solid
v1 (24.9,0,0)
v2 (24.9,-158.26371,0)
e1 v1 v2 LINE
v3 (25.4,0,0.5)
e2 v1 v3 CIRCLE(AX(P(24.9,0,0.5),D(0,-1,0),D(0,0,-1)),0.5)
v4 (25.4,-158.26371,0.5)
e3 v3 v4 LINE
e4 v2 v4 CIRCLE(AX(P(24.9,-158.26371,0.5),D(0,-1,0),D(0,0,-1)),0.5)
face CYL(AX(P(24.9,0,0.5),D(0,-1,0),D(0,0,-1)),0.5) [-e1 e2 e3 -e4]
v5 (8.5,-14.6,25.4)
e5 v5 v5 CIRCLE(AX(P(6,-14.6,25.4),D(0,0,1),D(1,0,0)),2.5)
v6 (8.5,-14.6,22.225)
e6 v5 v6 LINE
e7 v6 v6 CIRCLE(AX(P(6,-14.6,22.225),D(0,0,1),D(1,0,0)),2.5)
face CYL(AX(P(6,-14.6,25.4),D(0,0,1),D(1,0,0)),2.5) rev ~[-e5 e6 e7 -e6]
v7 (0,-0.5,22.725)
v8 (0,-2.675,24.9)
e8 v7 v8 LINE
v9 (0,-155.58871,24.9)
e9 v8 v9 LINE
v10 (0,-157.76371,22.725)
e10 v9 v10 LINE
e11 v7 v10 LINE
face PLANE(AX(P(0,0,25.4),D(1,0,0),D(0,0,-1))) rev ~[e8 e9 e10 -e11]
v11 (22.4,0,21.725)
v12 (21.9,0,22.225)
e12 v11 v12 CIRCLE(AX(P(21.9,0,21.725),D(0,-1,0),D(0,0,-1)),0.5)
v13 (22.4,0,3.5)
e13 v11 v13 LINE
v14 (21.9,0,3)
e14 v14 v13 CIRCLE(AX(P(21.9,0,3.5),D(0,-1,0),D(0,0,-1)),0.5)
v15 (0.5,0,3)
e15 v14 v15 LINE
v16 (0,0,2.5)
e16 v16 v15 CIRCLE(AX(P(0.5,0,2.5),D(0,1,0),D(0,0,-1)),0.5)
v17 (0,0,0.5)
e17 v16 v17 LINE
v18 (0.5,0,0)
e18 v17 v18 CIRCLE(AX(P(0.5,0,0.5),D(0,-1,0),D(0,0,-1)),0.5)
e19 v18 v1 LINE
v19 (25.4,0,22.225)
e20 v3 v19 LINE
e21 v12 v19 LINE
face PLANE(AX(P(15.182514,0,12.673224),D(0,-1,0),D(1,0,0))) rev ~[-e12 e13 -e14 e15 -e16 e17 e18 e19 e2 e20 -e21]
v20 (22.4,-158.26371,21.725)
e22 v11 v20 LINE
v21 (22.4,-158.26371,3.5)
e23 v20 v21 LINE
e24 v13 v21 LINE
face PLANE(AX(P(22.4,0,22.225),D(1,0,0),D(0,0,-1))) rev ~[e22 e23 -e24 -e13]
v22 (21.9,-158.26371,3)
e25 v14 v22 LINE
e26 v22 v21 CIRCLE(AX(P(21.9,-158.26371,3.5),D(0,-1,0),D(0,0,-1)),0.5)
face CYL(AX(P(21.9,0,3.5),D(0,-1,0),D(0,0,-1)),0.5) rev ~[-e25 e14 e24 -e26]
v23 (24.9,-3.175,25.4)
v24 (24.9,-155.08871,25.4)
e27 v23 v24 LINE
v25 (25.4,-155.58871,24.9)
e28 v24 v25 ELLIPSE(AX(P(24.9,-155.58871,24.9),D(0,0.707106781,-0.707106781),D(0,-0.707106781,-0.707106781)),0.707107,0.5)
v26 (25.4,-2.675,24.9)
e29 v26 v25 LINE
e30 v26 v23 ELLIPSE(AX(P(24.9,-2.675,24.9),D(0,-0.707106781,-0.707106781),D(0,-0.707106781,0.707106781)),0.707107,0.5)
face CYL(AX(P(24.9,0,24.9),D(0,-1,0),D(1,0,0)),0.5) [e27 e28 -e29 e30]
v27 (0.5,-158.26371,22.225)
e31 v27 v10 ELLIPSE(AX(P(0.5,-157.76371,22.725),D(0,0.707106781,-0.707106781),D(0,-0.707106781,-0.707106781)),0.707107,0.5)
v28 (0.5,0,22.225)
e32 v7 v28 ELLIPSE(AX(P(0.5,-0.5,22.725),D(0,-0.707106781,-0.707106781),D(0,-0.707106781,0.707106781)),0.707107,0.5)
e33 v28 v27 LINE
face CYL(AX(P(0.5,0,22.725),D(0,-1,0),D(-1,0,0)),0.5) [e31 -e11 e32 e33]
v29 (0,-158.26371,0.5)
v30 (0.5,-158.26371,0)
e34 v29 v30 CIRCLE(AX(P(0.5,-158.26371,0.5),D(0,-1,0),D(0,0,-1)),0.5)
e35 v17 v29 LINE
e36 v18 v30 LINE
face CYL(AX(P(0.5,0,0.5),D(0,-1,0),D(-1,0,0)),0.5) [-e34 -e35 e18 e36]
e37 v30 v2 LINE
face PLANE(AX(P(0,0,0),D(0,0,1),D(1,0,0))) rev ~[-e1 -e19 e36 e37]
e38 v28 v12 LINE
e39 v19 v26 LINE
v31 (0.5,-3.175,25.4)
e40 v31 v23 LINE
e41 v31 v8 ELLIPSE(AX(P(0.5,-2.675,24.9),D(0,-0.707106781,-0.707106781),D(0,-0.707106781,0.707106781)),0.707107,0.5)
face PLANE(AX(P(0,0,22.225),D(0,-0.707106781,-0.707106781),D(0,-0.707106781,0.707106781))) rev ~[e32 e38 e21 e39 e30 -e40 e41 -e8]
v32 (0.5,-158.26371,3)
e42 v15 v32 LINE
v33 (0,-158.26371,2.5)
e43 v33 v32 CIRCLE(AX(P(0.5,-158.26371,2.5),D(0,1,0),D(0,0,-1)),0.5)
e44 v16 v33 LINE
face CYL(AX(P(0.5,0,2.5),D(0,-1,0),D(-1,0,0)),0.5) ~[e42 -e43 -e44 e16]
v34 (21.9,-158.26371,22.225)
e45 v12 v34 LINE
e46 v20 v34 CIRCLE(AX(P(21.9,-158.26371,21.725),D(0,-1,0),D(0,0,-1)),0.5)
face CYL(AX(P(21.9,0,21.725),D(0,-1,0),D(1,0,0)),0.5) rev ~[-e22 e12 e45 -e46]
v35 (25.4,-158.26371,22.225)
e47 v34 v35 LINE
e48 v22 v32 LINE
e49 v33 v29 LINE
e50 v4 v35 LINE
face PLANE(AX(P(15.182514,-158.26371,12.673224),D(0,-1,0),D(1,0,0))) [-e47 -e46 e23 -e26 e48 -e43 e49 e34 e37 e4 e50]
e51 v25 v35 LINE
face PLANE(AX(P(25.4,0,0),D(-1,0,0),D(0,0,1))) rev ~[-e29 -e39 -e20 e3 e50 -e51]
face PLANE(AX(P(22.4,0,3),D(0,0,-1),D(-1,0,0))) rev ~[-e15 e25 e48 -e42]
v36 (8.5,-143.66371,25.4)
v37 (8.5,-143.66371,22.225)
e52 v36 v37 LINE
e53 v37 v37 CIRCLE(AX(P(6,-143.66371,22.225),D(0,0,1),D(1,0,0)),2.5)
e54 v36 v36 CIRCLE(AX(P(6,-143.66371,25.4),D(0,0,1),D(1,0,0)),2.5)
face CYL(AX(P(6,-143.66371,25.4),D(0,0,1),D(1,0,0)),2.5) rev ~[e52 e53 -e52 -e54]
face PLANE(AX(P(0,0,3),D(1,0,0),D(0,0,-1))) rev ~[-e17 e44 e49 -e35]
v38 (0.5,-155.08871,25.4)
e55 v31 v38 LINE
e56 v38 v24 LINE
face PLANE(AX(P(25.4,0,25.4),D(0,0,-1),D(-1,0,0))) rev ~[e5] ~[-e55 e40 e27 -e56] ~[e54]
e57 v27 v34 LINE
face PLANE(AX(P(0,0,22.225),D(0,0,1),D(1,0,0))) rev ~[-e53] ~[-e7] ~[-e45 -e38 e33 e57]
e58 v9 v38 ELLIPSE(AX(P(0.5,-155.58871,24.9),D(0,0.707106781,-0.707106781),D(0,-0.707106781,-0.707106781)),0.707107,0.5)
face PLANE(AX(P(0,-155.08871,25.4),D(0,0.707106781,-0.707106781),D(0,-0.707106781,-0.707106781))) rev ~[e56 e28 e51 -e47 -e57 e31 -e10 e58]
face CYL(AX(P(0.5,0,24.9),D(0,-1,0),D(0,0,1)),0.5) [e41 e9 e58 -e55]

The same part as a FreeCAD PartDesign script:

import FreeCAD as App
import Part
import Sketcher


def edges_at(feature, points):
    """Names of the edges that pass closest to the given points."""
    edges = feature.Shape.Edges
    near = lambda p: min(range(len(edges)), key=lambda i: edges[i].distToShape(Part.Vertex(*p))[0])
    return sorted({f"Edge{near(p) + 1}" for p in points})


def add_polygon(sketch, points):
    """Adds a closed chain of lines whose ends are joined by coincident constraints."""
    first, n = sketch.GeometryCount, len(points)
    for a, b in zip(points, points[1:] + points[:1]):
        sketch.addGeometry(Part.LineSegment(App.Vector(*a, 0), App.Vector(*b, 0)), False)
    for i in range(n):
        sketch.addConstraint(Sketcher.Constraint("Coincident", first + i, 2, first + (i + 1) % n, 1))

doc = App.newDocument("Part")
body = doc.addObject("PartDesign::Body", "Body")

# Sketch on XZ plane
sketch1 = doc.addObject("Sketcher::SketchObject", "Sketch")
body.addObject(sketch1)
sketch1.AttachmentSupport = (doc.XZ_Plane, [""])
sketch1.MapMode = "FlatFace"
add_polygon(sketch1, [(0, 3), (0, 0), (25.4, 0), (25.4, 25.4), (0, 25.4), (0, 22.2), (22.4, 22.2), (22.4, 3)])  # lines 0-7
sketch1.addConstraint(Sketcher.Constraint("Vertical", 0))
sketch1.addConstraint(Sketcher.Constraint("Horizontal", 1))
sketch1.addConstraint(Sketcher.Constraint("Vertical", 2))
sketch1.addConstraint(Sketcher.Constraint("Horizontal", 3))
sketch1.addConstraint(Sketcher.Constraint("Vertical", 4))
sketch1.addConstraint(Sketcher.Constraint("Horizontal", 5))
sketch1.addConstraint(Sketcher.Constraint("Vertical", 6))
sketch1.addConstraint(Sketcher.Constraint("Horizontal", 7))
sketch1.addConstraint(Sketcher.Constraint("Coincident", 0, 2, -1, 1))
sketch1.addConstraint(Sketcher.Constraint("PointOnObject", 3, 2, -2))
sketch1.addConstraint(Sketcher.Constraint("Equal", 3, 2))
sketch1.addConstraint(Sketcher.Constraint("DistanceY", 0, 2, 0, 1, 3.0))
sketch1.addConstraint(Sketcher.Constraint("DistanceX", 1, 1, 1, 2, 25.4))
sketch1.addConstraint(Sketcher.Constraint("DistanceX", 5, 1, 5, 2, 22.4))
sketch1.addConstraint(Sketcher.Constraint("DistanceY", 4, 2, 4, 1, 3.175))
pad1 = doc.addObject("PartDesign::Pad", "Pad")
body.addObject(pad1)
pad1.Profile = sketch1
pad1.Length = 158.26371

# Sketch on XY plane
sketch2 = doc.addObject("Sketcher::SketchObject", "Sketch001")
body.addObject(sketch2)
sketch2.AttachmentSupport = (doc.XY_Plane, [""])
sketch2.MapMode = "FlatFace"
sketch2.AttachmentOffset = App.Placement(App.Vector(0, 0, 25.4), App.Rotation())
sketch2.addGeometry(Part.Circle(App.Vector(6, -14.6, 0), App.Vector(0, 0, 1), 2.5), False)
sketch2.addGeometry(Part.Circle(App.Vector(6, -143.7, 0), App.Vector(0, 0, 1), 2.5), False)
sketch2.addGeometry(Part.Circle(App.Vector(6, -243.7, 0), App.Vector(0, 0, 1), 2.5), False)
sketch2.addGeometry(Part.Circle(App.Vector(6, -343.7, 0), App.Vector(0, 0, 1), 2.5), False)
sketch2.addGeometry(Part.Circle(App.Vector(6, -443.7, 0), App.Vector(0, 0, 1), 2.5), False)
sketch2.addConstraint(Sketcher.Constraint("Equal", 0, 1))
sketch2.addConstraint(Sketcher.Constraint("Equal", 1, 2))
sketch2.addConstraint(Sketcher.Constraint("Equal", 2, 3))
sketch2.addConstraint(Sketcher.Constraint("Equal", 3, 4))
sketch2.addConstraint(Sketcher.Constraint("Vertical", 0, 3, 1, 3))
sketch2.addConstraint(Sketcher.Constraint("Vertical", 1, 3, 2, 3))
sketch2.addConstraint(Sketcher.Constraint("Vertical", 2, 3, 3, 3))
sketch2.addConstraint(Sketcher.Constraint("Vertical", 3, 3, 4, 3))
sketch2.addConstraint(Sketcher.Constraint("Diameter", 0, 5.0))
sketch2.addConstraint(Sketcher.Constraint("DistanceX", -1, 1, 0, 3, 6.0))
sketch2.addConstraint(Sketcher.Constraint("DistanceY", 2, 3, 1, 3, 100.0))
sketch2.addConstraint(Sketcher.Constraint("DistanceY", 3, 3, 2, 3, 100.0))
sketch2.addConstraint(Sketcher.Constraint("DistanceY", 4, 3, 3, 3, 100.0))
sketch2.addConstraint(Sketcher.Constraint("DistanceY", 0, 3, -1, 1, 14.6))
sketch2.addConstraint(Sketcher.Constraint("DistanceY", 1, 3, -1, 1, 143.66371))
pocket1 = doc.addObject("PartDesign::Pocket", "Pocket")
body.addObject(pocket1)
pocket1.Profile = sketch2
pocket1.Length = 5
doc.recompute()

fillet = doc.addObject("PartDesign::Fillet", "Fillet")
body.addObject(fillet)
fillet.Base = (pocket1, edges_at(pocket1, [
    (0, -79.132, 25.4),
    (0, -79.132, 22.225),
    (25.4, -79.132, 25.4),
    (22.4, -79.132, 3),
    (0, -79.132, 3),
    (0, -79.132, 0),
    (22.4, -79.132, 22.225),
    (25.4, -79.132, 0),
]))
fillet.Radius = 0.5

# Sketch on YZ plane
sketch3 = doc.addObject("Sketcher::SketchObject", "Sketch002")
body.addObject(sketch3)
sketch3.AttachmentSupport = (doc.YZ_Plane, [""])
sketch3.MapMode = "FlatFace"
add_polygon(sketch3, [(0, 25.4), (0, 22.2), (-3.2, 25.4)])  # lines 0-2
add_polygon(sketch3, [(-155.1, 25.4), (-158.3, 22.2), (-158.3, 25.4)])  # lines 3-5
sketch3.addConstraint(Sketcher.Constraint("Vertical", 0))
sketch3.addConstraint(Sketcher.Constraint("Horizontal", 2))
sketch3.addConstraint(Sketcher.Constraint("Vertical", 4))
sketch3.addConstraint(Sketcher.Constraint("Horizontal", 5))
sketch3.addConstraint(Sketcher.Constraint("PointOnObject", 0, 2, -2))
sketch3.addConstraint(Sketcher.Constraint("Perpendicular", 1, 3))
sketch3.addConstraint(Sketcher.Constraint("Horizontal", 0, 2, 3, 2))
sketch3.addConstraint(Sketcher.Constraint("Horizontal", 2, 2, 4, 2))
sketch3.addConstraint(Sketcher.Constraint("Equal", 2, 5))
sketch3.addConstraint(Sketcher.Constraint("DistanceY", -1, 1, 1, 2, 25.4))
sketch3.addConstraint(Sketcher.Constraint("DistanceX", 2, 1, 2, 2, 3.175))
sketch3.addConstraint(Sketcher.Constraint("DistanceX", 3, 2, -1, 1, 158.26371))
pocket2 = doc.addObject("PartDesign::Pocket", "Pocket001")
body.addObject(pocket2)
pocket2.Profile = sketch3
pocket2.Type = "ThroughAll"
pocket2.Reversed = True

doc.recompute()
